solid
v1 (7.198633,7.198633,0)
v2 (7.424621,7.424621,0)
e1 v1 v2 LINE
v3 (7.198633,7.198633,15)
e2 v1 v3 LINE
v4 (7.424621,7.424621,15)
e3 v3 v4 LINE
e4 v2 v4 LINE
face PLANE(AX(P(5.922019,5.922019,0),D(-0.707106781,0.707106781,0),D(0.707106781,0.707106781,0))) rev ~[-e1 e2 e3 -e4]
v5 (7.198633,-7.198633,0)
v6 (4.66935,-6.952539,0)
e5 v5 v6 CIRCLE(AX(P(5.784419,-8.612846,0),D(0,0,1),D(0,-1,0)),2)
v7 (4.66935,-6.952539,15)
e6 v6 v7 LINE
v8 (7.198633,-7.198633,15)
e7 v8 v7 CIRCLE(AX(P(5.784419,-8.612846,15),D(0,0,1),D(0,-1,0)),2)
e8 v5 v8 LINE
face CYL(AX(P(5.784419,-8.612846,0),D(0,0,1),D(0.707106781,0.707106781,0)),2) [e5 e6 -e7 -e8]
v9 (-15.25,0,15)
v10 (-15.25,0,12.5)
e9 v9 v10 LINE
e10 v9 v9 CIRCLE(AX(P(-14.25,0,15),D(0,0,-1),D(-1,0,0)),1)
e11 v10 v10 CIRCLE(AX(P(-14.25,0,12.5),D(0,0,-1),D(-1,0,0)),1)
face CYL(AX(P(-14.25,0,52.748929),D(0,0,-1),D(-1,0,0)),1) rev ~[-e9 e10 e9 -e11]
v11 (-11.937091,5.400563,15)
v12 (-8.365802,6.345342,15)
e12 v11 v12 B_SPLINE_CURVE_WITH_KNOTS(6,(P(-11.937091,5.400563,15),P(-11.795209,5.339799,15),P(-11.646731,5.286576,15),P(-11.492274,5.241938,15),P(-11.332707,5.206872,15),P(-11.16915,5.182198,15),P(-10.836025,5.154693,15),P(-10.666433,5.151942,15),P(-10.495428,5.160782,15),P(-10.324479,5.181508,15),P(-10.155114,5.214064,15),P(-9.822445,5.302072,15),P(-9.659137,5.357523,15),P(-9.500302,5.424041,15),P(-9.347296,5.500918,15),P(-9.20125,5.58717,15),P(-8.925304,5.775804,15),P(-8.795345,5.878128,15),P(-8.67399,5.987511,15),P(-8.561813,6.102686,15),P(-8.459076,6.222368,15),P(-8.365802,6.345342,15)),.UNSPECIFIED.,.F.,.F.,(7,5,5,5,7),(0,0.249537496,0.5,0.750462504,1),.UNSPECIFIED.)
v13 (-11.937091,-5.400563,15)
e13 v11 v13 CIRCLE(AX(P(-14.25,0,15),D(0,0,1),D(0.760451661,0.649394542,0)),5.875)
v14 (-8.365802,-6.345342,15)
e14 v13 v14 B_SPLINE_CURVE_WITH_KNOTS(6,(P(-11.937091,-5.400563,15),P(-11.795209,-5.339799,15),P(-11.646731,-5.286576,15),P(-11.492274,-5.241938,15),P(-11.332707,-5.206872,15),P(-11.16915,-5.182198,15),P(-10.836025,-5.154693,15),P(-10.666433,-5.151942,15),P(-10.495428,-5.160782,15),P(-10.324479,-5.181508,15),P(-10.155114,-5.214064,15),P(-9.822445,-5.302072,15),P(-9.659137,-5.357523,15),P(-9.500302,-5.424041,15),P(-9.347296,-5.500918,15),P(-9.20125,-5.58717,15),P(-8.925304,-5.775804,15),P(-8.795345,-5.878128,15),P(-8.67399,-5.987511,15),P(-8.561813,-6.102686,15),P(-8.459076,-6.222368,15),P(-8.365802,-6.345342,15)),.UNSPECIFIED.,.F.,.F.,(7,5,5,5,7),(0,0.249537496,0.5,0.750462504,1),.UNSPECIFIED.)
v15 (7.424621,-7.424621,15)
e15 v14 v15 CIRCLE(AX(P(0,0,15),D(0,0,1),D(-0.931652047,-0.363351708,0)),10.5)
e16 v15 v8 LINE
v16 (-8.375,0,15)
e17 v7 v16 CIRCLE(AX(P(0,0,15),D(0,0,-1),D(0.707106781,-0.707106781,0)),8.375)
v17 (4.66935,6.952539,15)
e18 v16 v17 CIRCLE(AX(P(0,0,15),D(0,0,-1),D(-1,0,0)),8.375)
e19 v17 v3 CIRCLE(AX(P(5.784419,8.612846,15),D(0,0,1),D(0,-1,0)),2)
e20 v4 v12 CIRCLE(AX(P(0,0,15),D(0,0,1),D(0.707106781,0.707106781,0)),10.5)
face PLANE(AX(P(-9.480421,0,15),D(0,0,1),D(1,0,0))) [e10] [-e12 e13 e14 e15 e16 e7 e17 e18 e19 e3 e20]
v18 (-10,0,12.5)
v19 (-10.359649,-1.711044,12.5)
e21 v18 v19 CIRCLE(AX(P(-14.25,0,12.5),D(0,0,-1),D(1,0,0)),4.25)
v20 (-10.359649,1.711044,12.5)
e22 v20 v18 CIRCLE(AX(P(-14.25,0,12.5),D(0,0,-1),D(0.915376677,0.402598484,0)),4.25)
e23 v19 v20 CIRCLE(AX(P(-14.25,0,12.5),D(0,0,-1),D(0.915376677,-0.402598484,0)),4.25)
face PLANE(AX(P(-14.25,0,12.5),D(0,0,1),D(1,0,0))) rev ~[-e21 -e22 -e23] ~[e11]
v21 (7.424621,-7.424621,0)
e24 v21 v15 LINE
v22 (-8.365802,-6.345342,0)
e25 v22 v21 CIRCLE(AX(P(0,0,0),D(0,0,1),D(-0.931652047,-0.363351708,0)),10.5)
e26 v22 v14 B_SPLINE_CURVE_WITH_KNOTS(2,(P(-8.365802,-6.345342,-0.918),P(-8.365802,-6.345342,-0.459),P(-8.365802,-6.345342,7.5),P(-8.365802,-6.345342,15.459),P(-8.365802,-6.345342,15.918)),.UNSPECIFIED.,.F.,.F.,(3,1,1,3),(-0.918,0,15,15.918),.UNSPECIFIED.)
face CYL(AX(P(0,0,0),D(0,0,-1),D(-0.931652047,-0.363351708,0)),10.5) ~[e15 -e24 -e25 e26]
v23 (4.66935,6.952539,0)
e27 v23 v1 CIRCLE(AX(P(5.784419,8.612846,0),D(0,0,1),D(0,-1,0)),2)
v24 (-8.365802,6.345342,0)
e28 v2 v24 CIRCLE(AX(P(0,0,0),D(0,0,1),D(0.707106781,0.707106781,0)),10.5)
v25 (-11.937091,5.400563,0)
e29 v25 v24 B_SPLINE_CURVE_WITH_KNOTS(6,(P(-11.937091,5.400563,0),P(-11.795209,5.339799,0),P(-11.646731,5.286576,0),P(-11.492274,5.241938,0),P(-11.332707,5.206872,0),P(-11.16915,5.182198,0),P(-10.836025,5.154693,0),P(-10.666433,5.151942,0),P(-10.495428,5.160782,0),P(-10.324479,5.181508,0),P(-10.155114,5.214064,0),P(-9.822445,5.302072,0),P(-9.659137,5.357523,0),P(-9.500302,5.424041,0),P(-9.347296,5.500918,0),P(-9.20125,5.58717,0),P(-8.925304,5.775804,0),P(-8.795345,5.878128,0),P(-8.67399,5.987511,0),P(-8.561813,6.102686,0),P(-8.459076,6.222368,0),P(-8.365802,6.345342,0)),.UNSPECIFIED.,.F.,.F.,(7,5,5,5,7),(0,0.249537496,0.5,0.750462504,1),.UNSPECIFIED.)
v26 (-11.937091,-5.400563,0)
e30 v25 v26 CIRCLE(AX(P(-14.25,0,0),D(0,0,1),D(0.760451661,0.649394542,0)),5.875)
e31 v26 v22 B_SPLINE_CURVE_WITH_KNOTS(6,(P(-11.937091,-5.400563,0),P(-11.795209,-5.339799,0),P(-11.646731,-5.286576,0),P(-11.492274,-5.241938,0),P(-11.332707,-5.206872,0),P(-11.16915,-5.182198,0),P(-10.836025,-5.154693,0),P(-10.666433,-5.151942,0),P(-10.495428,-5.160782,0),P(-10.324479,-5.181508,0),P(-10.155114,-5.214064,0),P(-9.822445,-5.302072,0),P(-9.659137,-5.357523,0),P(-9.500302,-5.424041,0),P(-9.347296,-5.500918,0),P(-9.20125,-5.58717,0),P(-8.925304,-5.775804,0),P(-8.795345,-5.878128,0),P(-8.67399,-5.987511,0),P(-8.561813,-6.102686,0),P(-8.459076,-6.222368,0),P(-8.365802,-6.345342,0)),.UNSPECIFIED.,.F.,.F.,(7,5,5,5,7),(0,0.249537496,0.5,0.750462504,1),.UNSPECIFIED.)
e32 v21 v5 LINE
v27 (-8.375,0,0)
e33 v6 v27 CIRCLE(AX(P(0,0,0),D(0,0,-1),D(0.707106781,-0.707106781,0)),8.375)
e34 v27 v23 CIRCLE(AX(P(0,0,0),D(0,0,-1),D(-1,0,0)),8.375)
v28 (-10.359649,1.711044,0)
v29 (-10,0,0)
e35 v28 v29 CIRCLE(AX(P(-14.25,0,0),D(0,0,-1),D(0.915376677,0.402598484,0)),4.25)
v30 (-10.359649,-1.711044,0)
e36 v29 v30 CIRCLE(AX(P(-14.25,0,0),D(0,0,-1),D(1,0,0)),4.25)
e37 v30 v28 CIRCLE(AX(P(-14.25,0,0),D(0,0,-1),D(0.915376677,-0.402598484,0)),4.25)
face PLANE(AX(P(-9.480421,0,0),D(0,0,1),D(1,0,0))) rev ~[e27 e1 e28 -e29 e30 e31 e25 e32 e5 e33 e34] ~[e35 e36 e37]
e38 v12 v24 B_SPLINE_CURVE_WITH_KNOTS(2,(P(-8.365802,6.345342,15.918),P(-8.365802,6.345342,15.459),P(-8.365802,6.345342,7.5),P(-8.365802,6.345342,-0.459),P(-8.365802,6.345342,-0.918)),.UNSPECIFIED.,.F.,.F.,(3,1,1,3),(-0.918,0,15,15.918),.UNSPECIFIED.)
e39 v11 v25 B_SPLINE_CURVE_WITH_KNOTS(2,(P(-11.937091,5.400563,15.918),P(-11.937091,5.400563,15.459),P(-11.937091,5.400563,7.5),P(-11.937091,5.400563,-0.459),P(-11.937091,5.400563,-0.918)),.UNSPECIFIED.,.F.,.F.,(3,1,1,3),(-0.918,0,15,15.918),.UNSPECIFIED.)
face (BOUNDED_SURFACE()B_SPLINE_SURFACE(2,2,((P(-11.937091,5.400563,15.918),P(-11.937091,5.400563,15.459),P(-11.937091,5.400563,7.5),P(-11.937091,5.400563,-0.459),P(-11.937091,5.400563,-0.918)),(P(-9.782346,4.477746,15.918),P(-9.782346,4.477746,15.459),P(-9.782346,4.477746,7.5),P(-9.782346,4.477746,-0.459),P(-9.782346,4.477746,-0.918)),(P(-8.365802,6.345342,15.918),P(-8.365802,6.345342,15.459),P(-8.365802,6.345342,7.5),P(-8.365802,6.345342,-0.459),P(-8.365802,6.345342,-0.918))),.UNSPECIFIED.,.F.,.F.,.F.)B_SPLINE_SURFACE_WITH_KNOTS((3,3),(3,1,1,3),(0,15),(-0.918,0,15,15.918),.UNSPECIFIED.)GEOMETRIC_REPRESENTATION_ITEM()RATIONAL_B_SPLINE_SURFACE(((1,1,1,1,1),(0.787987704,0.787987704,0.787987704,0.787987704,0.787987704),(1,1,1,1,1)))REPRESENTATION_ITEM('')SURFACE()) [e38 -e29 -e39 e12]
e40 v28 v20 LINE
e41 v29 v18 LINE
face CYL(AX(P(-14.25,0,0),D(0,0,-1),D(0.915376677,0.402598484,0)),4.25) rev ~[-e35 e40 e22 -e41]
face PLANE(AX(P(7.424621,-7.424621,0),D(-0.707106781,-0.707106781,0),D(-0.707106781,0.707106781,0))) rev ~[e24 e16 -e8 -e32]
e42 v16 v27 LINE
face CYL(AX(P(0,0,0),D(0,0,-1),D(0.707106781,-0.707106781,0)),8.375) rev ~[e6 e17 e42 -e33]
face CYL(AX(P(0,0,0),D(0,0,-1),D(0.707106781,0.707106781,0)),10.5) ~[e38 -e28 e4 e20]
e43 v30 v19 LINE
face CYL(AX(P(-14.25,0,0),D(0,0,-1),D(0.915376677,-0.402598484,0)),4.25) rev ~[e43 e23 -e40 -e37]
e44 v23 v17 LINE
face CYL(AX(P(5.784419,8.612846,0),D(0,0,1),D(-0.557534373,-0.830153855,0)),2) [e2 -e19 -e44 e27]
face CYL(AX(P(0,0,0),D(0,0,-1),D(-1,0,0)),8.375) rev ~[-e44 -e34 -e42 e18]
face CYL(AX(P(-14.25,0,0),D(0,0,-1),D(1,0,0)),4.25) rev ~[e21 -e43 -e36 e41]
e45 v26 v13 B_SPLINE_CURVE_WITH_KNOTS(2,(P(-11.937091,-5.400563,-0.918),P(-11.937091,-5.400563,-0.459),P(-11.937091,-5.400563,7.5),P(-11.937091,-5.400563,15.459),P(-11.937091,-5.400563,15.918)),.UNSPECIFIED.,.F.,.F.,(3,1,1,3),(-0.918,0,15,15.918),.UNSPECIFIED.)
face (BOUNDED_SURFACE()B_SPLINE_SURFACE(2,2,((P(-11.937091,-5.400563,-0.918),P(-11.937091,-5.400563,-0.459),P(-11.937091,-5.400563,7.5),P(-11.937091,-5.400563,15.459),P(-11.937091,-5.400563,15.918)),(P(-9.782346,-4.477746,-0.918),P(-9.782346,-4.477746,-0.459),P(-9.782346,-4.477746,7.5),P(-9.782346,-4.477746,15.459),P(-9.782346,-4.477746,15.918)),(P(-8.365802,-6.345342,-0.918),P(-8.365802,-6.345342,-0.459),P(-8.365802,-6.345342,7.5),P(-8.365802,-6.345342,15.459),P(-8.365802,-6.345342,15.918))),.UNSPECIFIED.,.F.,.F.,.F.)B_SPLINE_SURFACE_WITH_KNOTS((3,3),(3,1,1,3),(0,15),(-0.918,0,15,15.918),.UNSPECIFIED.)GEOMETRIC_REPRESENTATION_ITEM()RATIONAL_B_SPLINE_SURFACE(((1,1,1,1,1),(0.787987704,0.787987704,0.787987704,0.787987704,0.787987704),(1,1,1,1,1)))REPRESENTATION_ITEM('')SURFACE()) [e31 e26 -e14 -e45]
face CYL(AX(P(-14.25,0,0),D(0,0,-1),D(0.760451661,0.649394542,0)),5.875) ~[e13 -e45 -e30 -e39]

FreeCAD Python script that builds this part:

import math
import FreeCAD as App
import Part
import Sketcher


def edges_at(feature, points):
    """Names of the edges that pass closest to the given points."""
    edges = feature.Shape.Edges
    near = lambda p: min(range(len(edges)), key=lambda i: edges[i].distToShape(Part.Vertex(*p))[0])
    return sorted({f"Edge{near(p) + 1}" for p in points})

doc = App.newDocument("Part")
body = doc.addObject("PartDesign::Body", "Body")

sketch1 = body.newObject("Sketcher::SketchObject", "Sketch")
sketch1.AttachmentSupport = (doc.getObject("XY_Plane"), [""])
sketch1.MapMode = "FlatFace"
sketch1.addGeometry([
    Part.ArcOfCircle(Part.Circle(App.Vector(0, 0, 0), App.Vector(0, 0, 1), 8.4), math.radians(45), math.radians(180)),
    Part.LineSegment(App.Vector(5.9, 5.9, 0), App.Vector(7.4, 7.4, 0)),
    Part.ArcOfCircle(Part.Circle(App.Vector(0, 0, 0), App.Vector(0, 0, 1), 10.5), math.radians(45), math.radians(159)),
    Part.ArcOfCircle(Part.Circle(App.Vector(-14.2, 0, 0), App.Vector(0, 0, 1), 5.9), math.radians(40), math.radians(320)),
    Part.ArcOfCircle(Part.Circle(App.Vector(0, 0, 0), App.Vector(0, 0, 1), 10.5), math.radians(-159), math.radians(-45)),
    Part.LineSegment(App.Vector(7.4, -7.4, 0), App.Vector(5.9, -5.9, 0)),
    Part.ArcOfCircle(Part.Circle(App.Vector(0, 0, 0), App.Vector(0, 0, 1), 8.4), math.radians(180), math.radians(315)),
    Part.ArcOfCircle(Part.Circle(App.Vector(-14.3, 0, 0), App.Vector(0, 0, 1), 4.3), math.radians(0), math.radians(24)),
    Part.ArcOfCircle(Part.Circle(App.Vector(-14.3, 0, 0), App.Vector(0, 0, 1), 4.3), math.radians(-24), math.radians(0)),
    Part.ArcOfCircle(Part.Circle(App.Vector(-14.2, 0, 0), App.Vector(0, 0, 1), 4.2), math.radians(24), math.radians(336)),
], False)
sketch1.addConstraint([
    Sketcher.Constraint("Coincident", 0, 1, 1, 1),
    Sketcher.Constraint("Coincident", 1, 2, 2, 1),
    Sketcher.Constraint("Coincident", 2, 2, 3, 1),
    Sketcher.Constraint("Coincident", 3, 2, 4, 1),
    Sketcher.Constraint("Coincident", 4, 2, 5, 1),
    Sketcher.Constraint("Coincident", 5, 2, 6, 2),
    Sketcher.Constraint("Tangent", 6, 1, 0, 2),
    Sketcher.Constraint("Tangent", 7, 1, 8, 2),
    Sketcher.Constraint("Tangent", 8, 1, 9, 2),
    Sketcher.Constraint("Tangent", 9, 1, 7, 2),
    Sketcher.Constraint("Coincident", 0, 3, -1, 1),
    Sketcher.Constraint("Coincident", 2, 3, -1, 1),
    Sketcher.Constraint("Coincident", 4, 3, -1, 1),
    Sketcher.Constraint("Coincident", 7, 3, 3, 3),
    Sketcher.Constraint("Equal", 2, 4),
    Sketcher.Constraint("Equal", 0, 6),
    Sketcher.Constraint("Symmetric", 8, 1, 9, 1, -1),
    Sketcher.Constraint("PointOnObject", 6, 1, -1),
    Sketcher.Constraint("PointOnObject", 7, 1, -1),
    Sketcher.Constraint("Perpendicular", 1, 5),
    Sketcher.Constraint("Vertical", 1, 2, 4, 2),
    Sketcher.Constraint("Vertical", 0, 1, 5, 2),
    Sketcher.Constraint("Radius", 2, 10.5),
    Sketcher.Constraint("Radius", 7, 4.25),
    Sketcher.Constraint("DistanceX", 7, 1, -1, 1, 10.0),
    Sketcher.Constraint("Radius", 0, 8.375),
    Sketcher.Constraint("Radius", 3, 5.875),
    Sketcher.Constraint("DistanceX", -1, 1, 0, 1, 5.922019),
    Sketcher.Constraint("DistanceX", 8, 1, -1, 1, 10.359649),
])
pad1 = body.newObject("PartDesign::Pad", "Pad")
pad1.Profile = sketch1
pad1.Length = 15
doc.recompute()

fillet = body.newObject("PartDesign::Fillet", "Fillet")
fillet.Base = (pad1, edges_at(pad1, [(5.922, 5.922, 7.5), (5.922, -5.922, 7.5)]))
fillet.Radius = 2

sketch2 = body.newObject("Sketcher::SketchObject", "Sketch001")
sketch2.AttachmentSupport = (doc.getObject("XY_Plane"), [""])
sketch2.MapMode = "FlatFace"
sketch2.AttachmentOffset = App.Placement(App.Vector(0, 0, 15), App.Rotation())
sketch2.addGeometry(Part.Circle(App.Vector(-14, 0, 0), App.Vector(0, 0, 1), 6), False)
sketch2.addConstraint([
    Sketcher.Constraint("PointOnObject", 0, 3, -1),
    Sketcher.Constraint("Diameter", 0, 11.75),
    Sketcher.Constraint("DistanceX", 0, 3, -1, 1, 14.25),
])
pad2 = body.newObject("PartDesign::Pad", "Pad001")
pad2.Profile = sketch2
pad2.Length = 2.5
pad2.Reversed = True
doc.recompute()

fillet2 = body.newObject("PartDesign::Fillet", "Fillet001")
fillet2.Base = (pad2, edges_at(pad2, [(-9.782, 3.815, 7.5), (-9.782, -3.815, 7.5)]))
fillet2.Radius = 3

sketch3 = body.newObject("Sketcher::SketchObject", "Sketch002")
sketch3.AttachmentSupport = (doc.getObject("XY_Plane"), [""])
sketch3.MapMode = "FlatFace"
sketch3.AttachmentOffset = App.Placement(App.Vector(0, 0, 15), App.Rotation())
sketch3.addGeometry(Part.Circle(App.Vector(-14.2, 0, 0), App.Vector(0, 0, 1), 1), False)
sketch3.addConstraint([
    Sketcher.Constraint("PointOnObject", 0, 3, -1),
    Sketcher.Constraint("Diameter", 0, 2.0),
    Sketcher.Constraint("DistanceX", 0, 3, -1, 1, 14.25),
])
doc.recompute()
hole = body.newObject("PartDesign::Hole", "Hole")
hole.Profile = sketch3
hole.ThreadType = "None"
hole.Diameter = 2
hole.DepthType = "ThroughAll"

doc.recompute()
